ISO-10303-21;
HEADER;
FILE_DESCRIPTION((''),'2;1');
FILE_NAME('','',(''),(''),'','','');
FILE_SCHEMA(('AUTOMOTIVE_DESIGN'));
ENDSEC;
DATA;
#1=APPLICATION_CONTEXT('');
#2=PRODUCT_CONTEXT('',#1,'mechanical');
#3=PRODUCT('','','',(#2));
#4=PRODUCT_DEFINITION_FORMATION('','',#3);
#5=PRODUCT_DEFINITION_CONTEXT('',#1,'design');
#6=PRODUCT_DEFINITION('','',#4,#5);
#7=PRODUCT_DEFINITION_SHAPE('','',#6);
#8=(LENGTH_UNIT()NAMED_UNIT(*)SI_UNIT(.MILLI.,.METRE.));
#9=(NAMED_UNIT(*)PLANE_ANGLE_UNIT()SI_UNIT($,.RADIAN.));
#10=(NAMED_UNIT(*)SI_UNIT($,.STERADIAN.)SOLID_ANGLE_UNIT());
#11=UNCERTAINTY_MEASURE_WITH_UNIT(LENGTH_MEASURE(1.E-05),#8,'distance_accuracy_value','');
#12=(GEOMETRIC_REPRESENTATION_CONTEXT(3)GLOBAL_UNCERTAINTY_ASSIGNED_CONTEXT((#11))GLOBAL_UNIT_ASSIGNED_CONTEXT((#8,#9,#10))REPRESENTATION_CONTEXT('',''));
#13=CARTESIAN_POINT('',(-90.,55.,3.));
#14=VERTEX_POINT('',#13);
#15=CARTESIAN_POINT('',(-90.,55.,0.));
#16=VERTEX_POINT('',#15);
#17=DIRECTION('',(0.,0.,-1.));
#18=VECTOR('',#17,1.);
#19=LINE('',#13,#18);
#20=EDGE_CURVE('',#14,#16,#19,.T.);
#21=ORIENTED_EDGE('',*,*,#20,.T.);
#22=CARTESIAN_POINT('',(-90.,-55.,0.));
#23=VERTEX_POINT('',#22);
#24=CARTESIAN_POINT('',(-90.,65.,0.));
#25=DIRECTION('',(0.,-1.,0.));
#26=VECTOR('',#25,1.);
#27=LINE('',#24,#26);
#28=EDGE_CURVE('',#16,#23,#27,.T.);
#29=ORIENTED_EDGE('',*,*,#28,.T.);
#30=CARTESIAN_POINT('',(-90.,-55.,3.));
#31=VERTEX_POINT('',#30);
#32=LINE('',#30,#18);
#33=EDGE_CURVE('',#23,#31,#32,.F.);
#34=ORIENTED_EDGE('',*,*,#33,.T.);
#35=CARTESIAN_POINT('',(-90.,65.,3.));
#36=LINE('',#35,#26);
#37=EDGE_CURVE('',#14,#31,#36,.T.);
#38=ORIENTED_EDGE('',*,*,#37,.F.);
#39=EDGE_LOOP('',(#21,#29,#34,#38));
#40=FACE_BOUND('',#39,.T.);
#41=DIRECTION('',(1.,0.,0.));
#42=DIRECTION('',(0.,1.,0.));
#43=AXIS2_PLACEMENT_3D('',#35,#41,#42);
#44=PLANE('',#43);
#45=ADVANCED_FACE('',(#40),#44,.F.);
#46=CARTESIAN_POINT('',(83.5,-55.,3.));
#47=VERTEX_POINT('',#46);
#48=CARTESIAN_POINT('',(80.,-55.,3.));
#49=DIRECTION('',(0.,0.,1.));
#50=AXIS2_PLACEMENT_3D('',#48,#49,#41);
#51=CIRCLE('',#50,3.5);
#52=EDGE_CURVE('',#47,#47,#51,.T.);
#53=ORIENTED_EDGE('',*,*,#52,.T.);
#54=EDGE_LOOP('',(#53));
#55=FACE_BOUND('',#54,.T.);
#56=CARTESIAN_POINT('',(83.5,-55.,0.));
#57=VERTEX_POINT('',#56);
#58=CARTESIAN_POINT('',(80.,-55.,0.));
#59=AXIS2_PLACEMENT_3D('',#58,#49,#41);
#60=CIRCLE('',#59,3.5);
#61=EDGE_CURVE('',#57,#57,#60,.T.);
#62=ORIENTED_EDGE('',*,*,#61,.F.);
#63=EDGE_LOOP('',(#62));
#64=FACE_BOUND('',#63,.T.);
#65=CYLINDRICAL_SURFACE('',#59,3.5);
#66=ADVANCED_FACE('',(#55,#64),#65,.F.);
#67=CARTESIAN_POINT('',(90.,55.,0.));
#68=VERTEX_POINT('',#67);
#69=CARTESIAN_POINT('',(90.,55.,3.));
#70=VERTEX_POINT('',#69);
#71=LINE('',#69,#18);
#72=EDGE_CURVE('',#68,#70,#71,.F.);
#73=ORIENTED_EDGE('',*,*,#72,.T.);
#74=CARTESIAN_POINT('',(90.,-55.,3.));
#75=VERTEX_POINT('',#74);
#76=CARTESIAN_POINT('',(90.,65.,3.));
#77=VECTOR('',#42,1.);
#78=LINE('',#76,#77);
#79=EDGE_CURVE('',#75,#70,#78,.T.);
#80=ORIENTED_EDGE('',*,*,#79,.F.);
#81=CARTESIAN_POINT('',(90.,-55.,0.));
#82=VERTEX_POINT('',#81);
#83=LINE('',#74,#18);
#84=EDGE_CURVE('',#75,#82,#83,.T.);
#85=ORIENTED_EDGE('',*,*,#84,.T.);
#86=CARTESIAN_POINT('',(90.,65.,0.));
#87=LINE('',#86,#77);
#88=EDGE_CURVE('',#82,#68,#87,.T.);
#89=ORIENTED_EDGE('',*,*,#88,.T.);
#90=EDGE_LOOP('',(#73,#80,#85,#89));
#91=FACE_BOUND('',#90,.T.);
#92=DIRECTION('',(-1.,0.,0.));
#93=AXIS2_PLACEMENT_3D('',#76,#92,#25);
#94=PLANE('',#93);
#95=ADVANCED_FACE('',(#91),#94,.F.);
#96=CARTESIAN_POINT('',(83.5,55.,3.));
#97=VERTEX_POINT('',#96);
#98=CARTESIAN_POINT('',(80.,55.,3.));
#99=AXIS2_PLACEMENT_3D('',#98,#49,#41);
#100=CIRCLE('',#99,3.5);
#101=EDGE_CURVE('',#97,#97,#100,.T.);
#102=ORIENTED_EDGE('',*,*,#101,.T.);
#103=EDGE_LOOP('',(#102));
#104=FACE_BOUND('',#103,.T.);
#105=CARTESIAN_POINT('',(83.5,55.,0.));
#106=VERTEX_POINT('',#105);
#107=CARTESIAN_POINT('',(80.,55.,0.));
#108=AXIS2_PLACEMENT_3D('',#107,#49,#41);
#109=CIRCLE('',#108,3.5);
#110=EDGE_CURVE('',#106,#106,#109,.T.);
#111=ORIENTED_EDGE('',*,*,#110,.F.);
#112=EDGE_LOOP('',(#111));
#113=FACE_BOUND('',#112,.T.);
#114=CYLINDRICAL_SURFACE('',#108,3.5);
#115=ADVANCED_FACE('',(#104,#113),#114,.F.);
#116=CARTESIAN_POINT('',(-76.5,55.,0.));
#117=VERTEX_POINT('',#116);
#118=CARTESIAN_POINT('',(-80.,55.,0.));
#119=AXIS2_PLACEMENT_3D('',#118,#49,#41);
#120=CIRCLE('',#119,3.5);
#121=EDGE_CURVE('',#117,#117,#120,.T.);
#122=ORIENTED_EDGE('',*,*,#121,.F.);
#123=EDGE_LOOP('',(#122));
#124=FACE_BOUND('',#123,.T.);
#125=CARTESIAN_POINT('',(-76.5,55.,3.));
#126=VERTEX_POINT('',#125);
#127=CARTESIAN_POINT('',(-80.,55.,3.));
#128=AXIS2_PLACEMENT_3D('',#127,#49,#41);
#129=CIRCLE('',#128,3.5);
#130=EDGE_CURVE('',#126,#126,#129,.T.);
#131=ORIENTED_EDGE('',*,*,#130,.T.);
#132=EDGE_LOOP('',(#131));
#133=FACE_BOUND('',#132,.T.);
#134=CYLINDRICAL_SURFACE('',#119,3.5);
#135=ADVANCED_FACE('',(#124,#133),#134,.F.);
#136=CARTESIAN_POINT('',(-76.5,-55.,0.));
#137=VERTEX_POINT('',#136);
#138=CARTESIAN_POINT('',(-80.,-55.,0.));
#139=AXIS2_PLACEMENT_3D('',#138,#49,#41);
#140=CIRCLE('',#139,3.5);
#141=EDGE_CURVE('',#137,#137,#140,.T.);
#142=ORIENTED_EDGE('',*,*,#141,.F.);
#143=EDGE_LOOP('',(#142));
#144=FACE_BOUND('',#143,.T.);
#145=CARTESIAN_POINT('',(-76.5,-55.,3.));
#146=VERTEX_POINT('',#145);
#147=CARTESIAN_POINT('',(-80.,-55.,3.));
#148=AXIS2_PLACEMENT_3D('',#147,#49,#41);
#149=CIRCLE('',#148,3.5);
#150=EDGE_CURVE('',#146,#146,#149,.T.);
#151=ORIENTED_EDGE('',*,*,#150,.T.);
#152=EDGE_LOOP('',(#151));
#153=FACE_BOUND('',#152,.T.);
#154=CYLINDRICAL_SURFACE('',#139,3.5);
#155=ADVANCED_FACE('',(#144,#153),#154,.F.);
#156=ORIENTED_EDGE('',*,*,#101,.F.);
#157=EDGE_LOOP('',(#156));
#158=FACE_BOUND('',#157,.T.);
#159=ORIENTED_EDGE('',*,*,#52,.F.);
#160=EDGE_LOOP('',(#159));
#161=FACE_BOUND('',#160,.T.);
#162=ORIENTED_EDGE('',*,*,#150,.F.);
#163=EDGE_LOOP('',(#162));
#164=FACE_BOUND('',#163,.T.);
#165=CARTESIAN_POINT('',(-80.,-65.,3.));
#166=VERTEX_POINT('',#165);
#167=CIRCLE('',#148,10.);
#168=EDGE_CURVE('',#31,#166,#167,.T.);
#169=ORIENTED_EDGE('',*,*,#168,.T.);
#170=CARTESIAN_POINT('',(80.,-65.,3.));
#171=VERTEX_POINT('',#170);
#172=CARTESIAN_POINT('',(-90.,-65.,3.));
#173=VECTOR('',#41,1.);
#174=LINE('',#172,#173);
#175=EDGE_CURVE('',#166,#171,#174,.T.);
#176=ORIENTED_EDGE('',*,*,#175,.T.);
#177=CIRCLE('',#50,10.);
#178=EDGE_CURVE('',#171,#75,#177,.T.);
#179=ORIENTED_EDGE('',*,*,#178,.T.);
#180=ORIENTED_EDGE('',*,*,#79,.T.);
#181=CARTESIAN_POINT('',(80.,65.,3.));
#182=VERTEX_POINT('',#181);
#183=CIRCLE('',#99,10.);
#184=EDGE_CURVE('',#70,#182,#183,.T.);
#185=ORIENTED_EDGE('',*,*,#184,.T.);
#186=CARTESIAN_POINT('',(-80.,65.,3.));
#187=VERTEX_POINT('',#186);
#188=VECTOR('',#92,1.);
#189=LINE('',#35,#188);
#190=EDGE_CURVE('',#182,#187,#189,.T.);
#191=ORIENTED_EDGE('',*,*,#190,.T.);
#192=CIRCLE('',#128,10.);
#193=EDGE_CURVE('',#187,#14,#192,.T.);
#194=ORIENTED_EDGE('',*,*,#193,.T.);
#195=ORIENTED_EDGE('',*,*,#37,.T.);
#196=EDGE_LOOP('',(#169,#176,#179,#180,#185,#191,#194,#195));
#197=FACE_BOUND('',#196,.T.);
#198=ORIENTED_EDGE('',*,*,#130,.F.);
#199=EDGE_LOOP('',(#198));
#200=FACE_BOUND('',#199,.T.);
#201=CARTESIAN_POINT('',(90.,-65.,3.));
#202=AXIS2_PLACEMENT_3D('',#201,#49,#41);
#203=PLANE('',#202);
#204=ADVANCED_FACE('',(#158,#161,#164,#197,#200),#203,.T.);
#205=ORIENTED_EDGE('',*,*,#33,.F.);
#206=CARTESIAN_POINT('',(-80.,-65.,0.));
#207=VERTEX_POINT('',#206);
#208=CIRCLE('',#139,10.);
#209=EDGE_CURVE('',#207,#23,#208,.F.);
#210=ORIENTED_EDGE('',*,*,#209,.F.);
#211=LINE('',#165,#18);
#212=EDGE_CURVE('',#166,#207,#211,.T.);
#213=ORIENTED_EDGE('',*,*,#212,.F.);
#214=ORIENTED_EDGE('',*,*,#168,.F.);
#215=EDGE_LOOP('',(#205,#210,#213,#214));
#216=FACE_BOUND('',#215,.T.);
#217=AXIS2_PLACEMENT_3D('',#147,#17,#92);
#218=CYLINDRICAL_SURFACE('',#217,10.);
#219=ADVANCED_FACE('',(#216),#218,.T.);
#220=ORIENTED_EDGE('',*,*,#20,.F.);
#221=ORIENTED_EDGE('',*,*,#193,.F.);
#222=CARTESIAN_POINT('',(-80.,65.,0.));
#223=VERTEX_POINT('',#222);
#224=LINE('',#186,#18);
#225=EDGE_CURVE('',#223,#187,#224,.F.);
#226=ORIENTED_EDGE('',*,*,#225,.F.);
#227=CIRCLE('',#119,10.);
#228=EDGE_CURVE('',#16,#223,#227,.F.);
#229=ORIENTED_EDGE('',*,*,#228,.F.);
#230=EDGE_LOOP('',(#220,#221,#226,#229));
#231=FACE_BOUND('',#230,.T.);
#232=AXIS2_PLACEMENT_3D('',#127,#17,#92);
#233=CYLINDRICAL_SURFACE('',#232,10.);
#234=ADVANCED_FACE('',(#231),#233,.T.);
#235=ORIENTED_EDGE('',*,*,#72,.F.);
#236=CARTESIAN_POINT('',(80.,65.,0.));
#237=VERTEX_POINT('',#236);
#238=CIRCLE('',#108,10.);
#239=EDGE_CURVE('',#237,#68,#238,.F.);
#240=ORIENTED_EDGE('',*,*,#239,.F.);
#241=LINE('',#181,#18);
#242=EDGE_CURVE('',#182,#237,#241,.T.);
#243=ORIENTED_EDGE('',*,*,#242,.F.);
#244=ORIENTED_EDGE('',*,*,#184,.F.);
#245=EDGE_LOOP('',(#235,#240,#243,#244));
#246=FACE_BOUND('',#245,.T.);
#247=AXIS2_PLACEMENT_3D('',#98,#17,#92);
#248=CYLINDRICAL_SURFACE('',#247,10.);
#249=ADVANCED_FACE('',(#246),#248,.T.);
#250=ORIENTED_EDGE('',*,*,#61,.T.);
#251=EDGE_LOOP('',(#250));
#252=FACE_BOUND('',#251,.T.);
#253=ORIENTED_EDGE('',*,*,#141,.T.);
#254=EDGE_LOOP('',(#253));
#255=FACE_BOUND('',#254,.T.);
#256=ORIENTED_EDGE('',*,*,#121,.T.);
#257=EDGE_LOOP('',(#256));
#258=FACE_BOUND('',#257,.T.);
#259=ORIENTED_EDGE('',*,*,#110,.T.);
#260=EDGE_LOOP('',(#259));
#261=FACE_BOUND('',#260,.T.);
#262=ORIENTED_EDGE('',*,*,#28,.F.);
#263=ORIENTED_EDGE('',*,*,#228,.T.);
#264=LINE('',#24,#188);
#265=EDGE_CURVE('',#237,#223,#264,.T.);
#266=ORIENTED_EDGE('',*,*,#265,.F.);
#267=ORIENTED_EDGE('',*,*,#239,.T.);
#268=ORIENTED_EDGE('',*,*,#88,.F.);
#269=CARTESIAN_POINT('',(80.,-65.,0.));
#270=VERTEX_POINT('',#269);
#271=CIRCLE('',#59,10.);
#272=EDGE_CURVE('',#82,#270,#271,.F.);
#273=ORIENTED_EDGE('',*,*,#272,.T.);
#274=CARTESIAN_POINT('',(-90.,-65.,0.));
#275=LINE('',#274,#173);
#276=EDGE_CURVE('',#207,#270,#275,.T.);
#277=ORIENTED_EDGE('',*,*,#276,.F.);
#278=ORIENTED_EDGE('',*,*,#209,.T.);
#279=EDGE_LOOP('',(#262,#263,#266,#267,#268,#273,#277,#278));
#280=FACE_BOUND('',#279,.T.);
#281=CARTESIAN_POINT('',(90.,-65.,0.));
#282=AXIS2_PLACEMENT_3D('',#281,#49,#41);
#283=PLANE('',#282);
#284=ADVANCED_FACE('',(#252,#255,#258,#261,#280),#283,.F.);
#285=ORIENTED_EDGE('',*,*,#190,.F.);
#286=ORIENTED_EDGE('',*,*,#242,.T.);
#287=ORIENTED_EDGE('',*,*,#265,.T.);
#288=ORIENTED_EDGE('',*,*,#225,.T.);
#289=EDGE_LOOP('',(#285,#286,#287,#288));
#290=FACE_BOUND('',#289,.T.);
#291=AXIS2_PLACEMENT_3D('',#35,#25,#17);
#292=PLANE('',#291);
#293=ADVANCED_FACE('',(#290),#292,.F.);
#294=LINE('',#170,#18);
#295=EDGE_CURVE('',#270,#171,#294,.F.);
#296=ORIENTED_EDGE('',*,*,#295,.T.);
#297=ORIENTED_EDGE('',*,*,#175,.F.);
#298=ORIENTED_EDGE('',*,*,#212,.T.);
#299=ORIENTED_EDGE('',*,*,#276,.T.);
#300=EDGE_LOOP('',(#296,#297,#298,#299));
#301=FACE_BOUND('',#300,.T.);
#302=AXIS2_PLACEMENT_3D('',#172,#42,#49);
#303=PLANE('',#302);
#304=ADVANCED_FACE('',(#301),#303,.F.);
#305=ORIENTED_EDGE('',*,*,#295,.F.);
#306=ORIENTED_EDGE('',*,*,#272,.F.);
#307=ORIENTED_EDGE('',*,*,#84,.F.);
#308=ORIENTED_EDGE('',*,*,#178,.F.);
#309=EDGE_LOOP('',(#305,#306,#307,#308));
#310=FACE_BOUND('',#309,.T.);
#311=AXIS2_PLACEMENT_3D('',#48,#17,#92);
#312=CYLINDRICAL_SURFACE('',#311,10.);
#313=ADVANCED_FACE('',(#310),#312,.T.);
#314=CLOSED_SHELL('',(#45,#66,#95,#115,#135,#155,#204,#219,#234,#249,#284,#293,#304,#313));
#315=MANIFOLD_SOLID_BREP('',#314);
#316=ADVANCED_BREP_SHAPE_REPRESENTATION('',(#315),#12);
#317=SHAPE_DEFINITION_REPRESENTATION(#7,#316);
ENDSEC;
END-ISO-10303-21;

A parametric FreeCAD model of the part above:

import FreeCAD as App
import Part
import Sketcher
from FreeCAD import Vector


def edges_at(feature, points):
    """Names of the edges that pass closest to the given points."""
    edges = feature.Shape.Edges
    near = lambda p: min(range(len(edges)), key=lambda i: edges[i].distToShape(Part.Vertex(*p))[0])
    return sorted({f"Edge{near(p) + 1}" for p in points})

doc = App.newDocument("Part")
body = doc.addObject("PartDesign::Body", "Body")

# Sketch on XY plane
sketch1 = body.newObject("Sketcher::SketchObject", "Sketch")
sketch1.AttachmentSupport = (doc.getObject("XY_Plane"), [""])
sketch1.MapMode = "FlatFace"
sketch1.addGeometry([
    Part.LineSegment(Vector(-90, 65, 0), Vector(-90, -65, 0)),
    Part.LineSegment(Vector(-90, -65, 0), Vector(90, -65, 0)),
    Part.LineSegment(Vector(90, -65, 0), Vector(90, 65, 0)),
    Part.LineSegment(Vector(90, 65, 0), Vector(-90, 65, 0)),
], False)
sketch1.addConstraint([
    Sketcher.Constraint("Coincident", 0, 2, 1, 1),
    Sketcher.Constraint("Coincident", 1, 2, 2, 1),
    Sketcher.Constraint("Coincident", 2, 2, 3, 1),
    Sketcher.Constraint("Coincident", 3, 2, 0, 1),
    Sketcher.Constraint("Vertical", 0),
    Sketcher.Constraint("Horizontal", 1),
    Sketcher.Constraint("Vertical", 2),
    Sketcher.Constraint("Horizontal", 3),
    Sketcher.Constraint("Symmetric", 0, 2, 2, 2, -1, 1),
    Sketcher.Constraint("DistanceX", 1, 1, 1, 2, 180.0),
    Sketcher.Constraint("DistanceY", 0, 2, 0, 1, 130.0),
])
pad1 = body.newObject("PartDesign::Pad", "Pad")
pad1.Profile = sketch1
pad1.Length = 3
doc.recompute()

fillet = body.newObject("PartDesign::Fillet", "Fillet")
fillet.Base = (pad1, edges_at(pad1, [
    (90, -65, 1.5),
    (-90, -65, 1.5),
    (-90, 65, 1.5),
    (90, 65, 1.5),
]))
fillet.Radius = 10

# Sketch on XY plane
sketch2 = body.newObject("Sketcher::SketchObject", "Sketch001")
sketch2.AttachmentSupport = (doc.getObject("XY_Plane"), [""])
sketch2.MapMode = "FlatFace"
sketch2.AttachmentOffset = App.Placement(Vector(0, 0, 3), App.Rotation())
sketch2.addGeometry([
    Part.Circle(Vector(-80, 55, 0), Vector(0, 0, 1), 3.5),
    Part.Circle(Vector(-80, -55, 0), Vector(0, 0, 1), 3.5),
    Part.Circle(Vector(80, 55, 0), Vector(0, 0, 1), 3.5),
    Part.Circle(Vector(80, -55, 0), Vector(0, 0, 1), 3.5),
], False)
sketch2.addConstraint([
    Sketcher.Constraint("Equal", 0, 1),
    Sketcher.Constraint("Equal", 1, 2),
    Sketcher.Constraint("Equal", 2, 3),
    Sketcher.Constraint("Symmetric", 1, 3, 2, 3, -1, 1),
    Sketcher.Constraint("Symmetric", 0, 3, 3, 3, -1, 1),
    Sketcher.Constraint("Symmetric", 0, 3, 2, 3, -2),
    Sketcher.Constraint("Diameter", 0, 7.0),
    Sketcher.Constraint("DistanceX", 0, 3, -1, 1, 80.0),
    Sketcher.Constraint("DistanceY", -1, 1, 0, 3, 55.0),
])
pocket1 = body.newObject("PartDesign::Pocket", "Pocket")
pocket1.Profile = sketch2
pocket1.Type = "ThroughAll"

doc.recompute()
